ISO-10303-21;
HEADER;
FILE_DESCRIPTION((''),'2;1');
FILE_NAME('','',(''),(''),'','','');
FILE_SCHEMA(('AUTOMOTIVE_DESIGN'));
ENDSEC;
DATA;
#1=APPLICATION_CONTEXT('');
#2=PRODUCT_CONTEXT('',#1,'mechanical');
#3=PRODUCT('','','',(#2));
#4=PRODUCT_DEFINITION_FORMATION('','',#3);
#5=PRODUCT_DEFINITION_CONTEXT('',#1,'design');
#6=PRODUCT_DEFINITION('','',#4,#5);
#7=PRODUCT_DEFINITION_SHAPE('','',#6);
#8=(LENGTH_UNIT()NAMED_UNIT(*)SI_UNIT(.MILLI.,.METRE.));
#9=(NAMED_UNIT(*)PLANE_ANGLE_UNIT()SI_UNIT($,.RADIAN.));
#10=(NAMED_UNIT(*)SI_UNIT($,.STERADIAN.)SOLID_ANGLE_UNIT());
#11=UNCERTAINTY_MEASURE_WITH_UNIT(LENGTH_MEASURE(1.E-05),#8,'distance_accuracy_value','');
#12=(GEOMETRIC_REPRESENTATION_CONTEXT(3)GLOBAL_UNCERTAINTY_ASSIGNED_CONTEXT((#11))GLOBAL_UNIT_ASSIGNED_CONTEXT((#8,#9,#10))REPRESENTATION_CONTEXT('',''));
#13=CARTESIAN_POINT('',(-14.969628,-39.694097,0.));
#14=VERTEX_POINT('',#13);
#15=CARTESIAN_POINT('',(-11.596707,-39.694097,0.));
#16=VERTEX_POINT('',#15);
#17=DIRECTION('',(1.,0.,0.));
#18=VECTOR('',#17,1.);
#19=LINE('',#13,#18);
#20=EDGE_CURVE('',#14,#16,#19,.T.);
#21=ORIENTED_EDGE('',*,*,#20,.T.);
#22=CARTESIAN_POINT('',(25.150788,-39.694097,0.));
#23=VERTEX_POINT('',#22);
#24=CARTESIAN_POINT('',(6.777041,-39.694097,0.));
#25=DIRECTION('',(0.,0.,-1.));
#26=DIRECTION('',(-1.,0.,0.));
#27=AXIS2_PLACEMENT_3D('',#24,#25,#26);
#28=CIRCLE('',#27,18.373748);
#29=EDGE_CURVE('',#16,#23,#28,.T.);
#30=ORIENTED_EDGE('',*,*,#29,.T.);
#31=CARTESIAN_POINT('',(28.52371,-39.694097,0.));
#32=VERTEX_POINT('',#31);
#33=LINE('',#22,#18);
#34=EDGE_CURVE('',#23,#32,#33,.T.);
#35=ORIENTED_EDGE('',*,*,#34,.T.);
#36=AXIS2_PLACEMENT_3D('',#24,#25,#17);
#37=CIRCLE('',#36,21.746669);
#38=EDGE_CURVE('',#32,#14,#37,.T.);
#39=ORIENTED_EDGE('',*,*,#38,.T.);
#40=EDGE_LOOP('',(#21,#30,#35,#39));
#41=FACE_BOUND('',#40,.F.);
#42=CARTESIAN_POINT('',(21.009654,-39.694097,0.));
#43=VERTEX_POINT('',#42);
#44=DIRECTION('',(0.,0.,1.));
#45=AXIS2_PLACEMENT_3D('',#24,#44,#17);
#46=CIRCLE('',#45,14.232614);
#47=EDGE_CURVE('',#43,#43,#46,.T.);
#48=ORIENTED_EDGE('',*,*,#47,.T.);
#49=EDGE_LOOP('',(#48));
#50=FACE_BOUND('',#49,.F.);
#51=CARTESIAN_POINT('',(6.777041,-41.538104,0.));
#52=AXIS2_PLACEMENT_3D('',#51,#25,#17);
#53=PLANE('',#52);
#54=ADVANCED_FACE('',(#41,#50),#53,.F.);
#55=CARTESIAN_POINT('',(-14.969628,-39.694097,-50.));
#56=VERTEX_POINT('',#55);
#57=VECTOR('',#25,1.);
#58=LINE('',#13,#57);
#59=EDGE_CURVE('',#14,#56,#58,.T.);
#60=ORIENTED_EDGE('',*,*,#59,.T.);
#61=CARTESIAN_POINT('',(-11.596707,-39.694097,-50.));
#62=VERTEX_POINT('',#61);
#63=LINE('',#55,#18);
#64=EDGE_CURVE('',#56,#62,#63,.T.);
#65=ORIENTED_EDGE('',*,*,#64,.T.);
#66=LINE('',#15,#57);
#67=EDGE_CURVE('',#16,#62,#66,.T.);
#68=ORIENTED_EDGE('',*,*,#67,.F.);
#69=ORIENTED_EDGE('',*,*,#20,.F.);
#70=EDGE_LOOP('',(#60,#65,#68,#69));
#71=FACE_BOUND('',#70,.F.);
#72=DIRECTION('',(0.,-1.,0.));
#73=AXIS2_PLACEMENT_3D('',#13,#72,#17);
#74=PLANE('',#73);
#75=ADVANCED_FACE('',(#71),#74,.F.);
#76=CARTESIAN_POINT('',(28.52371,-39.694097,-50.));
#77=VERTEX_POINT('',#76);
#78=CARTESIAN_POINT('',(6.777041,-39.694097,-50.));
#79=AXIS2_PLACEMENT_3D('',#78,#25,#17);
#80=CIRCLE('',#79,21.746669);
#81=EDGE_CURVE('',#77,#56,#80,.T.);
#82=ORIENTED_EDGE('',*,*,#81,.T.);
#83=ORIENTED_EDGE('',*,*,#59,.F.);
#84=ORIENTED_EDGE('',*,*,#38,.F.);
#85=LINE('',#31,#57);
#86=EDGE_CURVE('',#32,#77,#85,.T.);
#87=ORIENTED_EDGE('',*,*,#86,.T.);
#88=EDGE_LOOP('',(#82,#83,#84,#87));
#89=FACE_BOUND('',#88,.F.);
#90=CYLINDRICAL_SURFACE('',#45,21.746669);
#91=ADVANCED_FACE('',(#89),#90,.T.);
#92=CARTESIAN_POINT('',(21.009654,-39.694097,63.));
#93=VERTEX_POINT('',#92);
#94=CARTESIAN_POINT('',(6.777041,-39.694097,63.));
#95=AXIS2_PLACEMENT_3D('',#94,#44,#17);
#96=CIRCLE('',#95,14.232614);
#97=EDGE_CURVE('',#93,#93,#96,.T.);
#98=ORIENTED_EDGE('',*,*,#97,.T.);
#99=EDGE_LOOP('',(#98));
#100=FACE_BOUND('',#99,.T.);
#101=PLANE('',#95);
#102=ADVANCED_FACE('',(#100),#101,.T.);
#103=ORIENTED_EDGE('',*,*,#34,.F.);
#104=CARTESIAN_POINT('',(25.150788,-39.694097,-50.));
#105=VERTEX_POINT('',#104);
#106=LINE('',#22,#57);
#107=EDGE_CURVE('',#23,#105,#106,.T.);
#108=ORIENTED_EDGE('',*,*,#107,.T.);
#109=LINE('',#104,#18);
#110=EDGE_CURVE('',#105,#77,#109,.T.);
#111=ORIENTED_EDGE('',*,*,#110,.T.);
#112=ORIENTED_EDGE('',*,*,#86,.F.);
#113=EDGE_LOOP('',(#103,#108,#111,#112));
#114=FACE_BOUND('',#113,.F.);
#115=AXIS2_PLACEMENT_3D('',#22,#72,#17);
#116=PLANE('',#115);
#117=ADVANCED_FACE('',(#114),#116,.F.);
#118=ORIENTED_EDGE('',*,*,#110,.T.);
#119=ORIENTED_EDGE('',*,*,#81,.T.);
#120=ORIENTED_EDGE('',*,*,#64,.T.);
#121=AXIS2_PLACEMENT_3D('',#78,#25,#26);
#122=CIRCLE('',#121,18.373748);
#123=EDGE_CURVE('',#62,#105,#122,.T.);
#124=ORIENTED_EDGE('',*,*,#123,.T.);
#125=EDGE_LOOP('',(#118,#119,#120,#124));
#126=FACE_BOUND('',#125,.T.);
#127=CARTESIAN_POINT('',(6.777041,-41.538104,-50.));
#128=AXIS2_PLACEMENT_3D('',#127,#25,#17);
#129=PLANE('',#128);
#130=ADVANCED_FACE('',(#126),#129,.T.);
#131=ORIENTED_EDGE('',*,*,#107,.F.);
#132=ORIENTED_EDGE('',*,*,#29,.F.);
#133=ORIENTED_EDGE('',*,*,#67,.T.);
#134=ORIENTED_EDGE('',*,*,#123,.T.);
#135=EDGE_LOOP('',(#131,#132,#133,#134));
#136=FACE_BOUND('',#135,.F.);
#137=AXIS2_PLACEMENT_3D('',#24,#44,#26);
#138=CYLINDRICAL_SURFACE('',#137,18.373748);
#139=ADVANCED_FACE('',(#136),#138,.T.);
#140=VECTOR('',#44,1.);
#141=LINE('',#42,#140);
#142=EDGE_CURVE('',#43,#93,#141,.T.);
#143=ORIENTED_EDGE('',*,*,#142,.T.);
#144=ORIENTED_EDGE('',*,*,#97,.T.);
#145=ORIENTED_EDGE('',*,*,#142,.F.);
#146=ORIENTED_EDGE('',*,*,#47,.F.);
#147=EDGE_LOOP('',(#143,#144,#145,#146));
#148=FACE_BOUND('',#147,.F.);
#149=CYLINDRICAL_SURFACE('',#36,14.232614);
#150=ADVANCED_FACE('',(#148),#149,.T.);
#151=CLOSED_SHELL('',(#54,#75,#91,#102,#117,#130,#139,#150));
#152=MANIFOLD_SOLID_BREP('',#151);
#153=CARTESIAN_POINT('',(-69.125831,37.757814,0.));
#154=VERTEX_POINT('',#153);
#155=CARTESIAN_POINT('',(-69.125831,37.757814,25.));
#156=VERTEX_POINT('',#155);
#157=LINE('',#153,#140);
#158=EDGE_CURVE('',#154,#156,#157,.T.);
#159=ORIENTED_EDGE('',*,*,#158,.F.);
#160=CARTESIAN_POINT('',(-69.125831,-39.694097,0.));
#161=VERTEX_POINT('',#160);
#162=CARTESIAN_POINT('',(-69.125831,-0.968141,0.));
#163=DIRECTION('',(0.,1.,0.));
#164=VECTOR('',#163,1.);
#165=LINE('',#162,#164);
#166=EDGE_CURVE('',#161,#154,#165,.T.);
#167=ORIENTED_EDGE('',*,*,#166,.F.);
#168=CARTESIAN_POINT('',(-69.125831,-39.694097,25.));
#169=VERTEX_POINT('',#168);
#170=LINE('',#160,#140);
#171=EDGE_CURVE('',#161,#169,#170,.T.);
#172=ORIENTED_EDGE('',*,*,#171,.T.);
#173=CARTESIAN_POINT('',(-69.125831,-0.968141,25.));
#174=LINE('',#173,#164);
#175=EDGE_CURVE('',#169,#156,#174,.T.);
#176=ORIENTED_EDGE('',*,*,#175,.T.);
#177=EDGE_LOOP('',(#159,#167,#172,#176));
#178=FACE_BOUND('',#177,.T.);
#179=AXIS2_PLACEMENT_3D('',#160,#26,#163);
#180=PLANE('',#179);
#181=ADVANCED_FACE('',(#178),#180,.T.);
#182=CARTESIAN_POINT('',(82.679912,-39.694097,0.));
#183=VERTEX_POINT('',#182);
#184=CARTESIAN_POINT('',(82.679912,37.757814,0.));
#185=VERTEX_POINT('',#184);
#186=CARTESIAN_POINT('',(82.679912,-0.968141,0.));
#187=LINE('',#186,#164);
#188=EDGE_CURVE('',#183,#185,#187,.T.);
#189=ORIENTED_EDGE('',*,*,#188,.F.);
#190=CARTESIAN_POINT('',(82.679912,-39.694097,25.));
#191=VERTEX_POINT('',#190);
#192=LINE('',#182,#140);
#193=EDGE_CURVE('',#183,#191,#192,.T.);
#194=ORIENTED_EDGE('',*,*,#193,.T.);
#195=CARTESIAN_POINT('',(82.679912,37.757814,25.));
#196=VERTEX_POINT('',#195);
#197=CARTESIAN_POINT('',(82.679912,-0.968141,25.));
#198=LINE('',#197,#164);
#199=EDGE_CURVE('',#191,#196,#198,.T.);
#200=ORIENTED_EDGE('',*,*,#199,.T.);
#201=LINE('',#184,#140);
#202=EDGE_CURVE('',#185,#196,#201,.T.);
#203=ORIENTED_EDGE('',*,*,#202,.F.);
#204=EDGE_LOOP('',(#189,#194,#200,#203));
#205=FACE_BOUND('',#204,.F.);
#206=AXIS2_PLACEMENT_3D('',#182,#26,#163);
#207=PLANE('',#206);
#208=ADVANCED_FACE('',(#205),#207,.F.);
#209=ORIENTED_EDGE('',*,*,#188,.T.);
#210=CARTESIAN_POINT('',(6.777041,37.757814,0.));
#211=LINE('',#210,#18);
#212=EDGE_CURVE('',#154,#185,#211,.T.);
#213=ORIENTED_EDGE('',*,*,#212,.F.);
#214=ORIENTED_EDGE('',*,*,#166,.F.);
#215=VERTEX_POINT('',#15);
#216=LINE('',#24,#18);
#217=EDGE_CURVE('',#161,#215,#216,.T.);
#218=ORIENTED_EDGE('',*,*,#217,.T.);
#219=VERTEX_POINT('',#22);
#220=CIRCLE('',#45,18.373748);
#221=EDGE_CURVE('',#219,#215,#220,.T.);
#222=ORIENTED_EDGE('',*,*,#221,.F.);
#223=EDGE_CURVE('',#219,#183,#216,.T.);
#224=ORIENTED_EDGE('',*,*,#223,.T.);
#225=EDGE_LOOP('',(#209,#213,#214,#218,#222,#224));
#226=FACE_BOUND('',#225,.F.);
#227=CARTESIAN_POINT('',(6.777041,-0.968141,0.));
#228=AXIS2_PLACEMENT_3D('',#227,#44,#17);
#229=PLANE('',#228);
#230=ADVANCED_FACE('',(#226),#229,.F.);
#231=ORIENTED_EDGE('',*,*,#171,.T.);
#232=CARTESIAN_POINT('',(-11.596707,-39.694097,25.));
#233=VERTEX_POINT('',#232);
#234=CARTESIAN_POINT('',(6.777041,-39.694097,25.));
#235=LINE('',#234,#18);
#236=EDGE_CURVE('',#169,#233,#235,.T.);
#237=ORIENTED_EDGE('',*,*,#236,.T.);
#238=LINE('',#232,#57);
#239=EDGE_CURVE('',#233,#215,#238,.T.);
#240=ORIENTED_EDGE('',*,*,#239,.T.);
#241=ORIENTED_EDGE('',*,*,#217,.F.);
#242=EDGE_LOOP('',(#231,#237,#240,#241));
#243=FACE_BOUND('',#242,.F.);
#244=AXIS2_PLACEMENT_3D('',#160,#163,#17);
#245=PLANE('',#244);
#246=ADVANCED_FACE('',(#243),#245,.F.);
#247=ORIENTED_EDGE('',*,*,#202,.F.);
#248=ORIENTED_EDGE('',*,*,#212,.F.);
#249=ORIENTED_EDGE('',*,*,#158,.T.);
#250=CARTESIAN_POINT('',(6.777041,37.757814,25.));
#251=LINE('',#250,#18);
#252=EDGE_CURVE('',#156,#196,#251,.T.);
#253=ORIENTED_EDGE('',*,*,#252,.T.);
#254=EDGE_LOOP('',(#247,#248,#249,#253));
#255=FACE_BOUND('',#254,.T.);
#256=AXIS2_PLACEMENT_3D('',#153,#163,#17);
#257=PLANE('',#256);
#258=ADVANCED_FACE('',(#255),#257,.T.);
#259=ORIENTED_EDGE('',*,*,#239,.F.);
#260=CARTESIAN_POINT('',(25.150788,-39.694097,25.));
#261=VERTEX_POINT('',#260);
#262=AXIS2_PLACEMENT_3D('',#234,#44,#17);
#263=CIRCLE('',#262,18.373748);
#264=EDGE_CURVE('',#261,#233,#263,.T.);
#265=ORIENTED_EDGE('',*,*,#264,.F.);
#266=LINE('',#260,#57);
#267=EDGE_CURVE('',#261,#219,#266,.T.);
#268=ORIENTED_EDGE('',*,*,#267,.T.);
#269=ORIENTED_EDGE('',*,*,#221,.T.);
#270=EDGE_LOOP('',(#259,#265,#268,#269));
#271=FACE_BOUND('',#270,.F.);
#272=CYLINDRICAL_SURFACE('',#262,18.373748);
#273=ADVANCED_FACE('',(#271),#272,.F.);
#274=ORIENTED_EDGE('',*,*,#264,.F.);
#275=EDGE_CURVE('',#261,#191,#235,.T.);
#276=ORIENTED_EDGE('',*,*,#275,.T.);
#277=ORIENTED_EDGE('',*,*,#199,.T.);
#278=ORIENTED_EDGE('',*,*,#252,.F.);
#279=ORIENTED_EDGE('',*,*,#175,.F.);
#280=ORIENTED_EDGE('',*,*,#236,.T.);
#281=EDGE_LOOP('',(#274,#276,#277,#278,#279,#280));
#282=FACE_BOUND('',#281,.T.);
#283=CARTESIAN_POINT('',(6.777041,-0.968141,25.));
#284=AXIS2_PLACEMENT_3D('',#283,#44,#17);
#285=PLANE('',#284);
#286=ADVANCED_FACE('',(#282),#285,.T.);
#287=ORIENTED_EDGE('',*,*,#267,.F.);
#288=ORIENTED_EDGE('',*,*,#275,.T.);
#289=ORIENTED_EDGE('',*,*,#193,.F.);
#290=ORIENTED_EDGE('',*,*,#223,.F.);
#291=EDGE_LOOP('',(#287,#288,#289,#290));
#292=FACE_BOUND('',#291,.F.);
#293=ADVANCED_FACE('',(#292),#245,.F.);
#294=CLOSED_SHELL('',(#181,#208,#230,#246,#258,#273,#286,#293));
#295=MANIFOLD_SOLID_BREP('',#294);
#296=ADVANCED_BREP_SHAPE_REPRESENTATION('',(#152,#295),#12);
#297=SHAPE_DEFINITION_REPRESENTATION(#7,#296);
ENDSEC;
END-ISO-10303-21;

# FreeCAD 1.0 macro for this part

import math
import FreeCAD as App
import Part
import Sketcher
from FreeCAD import Vector
Q = App.Units.Quantity


def add_polygon(sketch, points):
    """Adds a closed chain of lines whose ends are joined by coincident constraints."""
    first, n = sketch.GeometryCount, len(points)
    for a, b in zip(points, points[1:] + points[:1]):
        sketch.addGeometry(Part.LineSegment(App.Vector(*a, 0), App.Vector(*b, 0)), False)
    for i in range(n):
        sketch.addConstraint(Sketcher.Constraint("Coincident", first + i, 2, first + (i + 1) % n, 1))

doc = App.newDocument("Part")
body = doc.addObject("PartDesign::Body", "Body")

sketch1 = body.newObject("Sketcher::SketchObject", "Sketch")
sketch1.AttachmentSupport = (doc.getObject("XY_Plane"), [""])
sketch1.MapMode = "FlatFace"
add_polygon(sketch1, [(-69, 38), (-69, -40), (83, -40), (83, 38)])
sketch1.addConstraint([
    Sketcher.Constraint("Vertical", 0),
    Sketcher.Constraint("Horizontal", 1),
    Sketcher.Constraint("Vertical", 2),
    Sketcher.Constraint("Horizontal", 3),
    Sketcher.Constraint("DistanceY", 0, 2, 0, 1, Q("77.451911 mm")),
    Sketcher.Constraint("DistanceX", 1, 1, 1, 2, Q("151.805744 mm")),
    Sketcher.Constraint("DistanceX", 0, 2, -1, 1, Q("69.125831 mm")),
    Sketcher.Constraint("DistanceY", 0, 2, -1, 1, Q("39.694097 mm")),
])
pad1 = body.newObject("PartDesign::Pad", "Pad")
pad1.Profile = sketch1
pad1.Length = 25

sketch2 = body.newObject("Sketcher::SketchObject", "Sketch001")
sketch2.AttachmentSupport = (doc.getObject("XY_Plane"), [""])
sketch2.MapMode = "FlatFace"
sketch2.AttachmentOffset = App.Placement(Vector(0, 0, 25), App.Rotation())
sketch2.addGeometry([
    Part.LineSegment(Vector(-12, -40, 0), Vector(25, -40, 0)),
    Part.ArcOfCircle(Part.Circle(Vector(7, -40, 0), Vector(0, 0, 1), 18), math.radians(0), math.radians(180)),
], False)
sketch2.addConstraint([
    Sketcher.Constraint("Coincident", 0, 1, 1, 2),
    Sketcher.Constraint("Coincident", 1, 1, 0, 2),
    Sketcher.Constraint("Horizontal", 0),
    Sketcher.Constraint("Horizontal", 1, 3, 0, 1),
    Sketcher.Constraint("Radius", 1, Q("18.373748 mm")),
    Sketcher.Constraint("DistanceX", -1, 1, 1, 3, Q("6.777041 mm")),
    Sketcher.Constraint("DistanceY", 1, 3, -1, 1, Q("39.694097 mm")),
])
pocket1 = body.newObject("PartDesign::Pocket", "Pocket")
pocket1.Profile = sketch2
pocket1.Length = 25
body2 = doc.addObject("PartDesign::Body", "Body001")

sketch3 = body2.newObject("Sketcher::SketchObject", "Sketch002")
sketch3.AttachmentSupport = (doc.getObject("XY_Plane001"), [""])
sketch3.MapMode = "FlatFace"
sketch3.addGeometry([
    Part.LineSegment(Vector(25.2, -39.7, 0), Vector(28.5, -39.7, 0)),
    Part.ArcOfCircle(Part.Circle(Vector(6.8, -39.7, 0), Vector(0, 0, 1), 21.7), math.radians(180), math.radians(360)),
    Part.LineSegment(Vector(-15, -39.7, 0), Vector(-11.6, -39.7, 0)),
    Part.ArcOfCircle(Part.Circle(Vector(6.8, -39.7, 0), Vector(0, 0, 1), 18.4), math.radians(0), math.radians(180)),
], False)
sketch3.addConstraint([
    Sketcher.Constraint("Coincident", 0, 2, 1, 2),
    Sketcher.Constraint("Coincident", 1, 1, 2, 1),
    Sketcher.Constraint("Coincident", 2, 2, 3, 2),
    Sketcher.Constraint("Coincident", 3, 1, 0, 1),
    Sketcher.Constraint("Horizontal", 0),
    Sketcher.Constraint("Horizontal", 2),
    Sketcher.Constraint("Coincident", 3, 3, 1, 3),
    Sketcher.Constraint("Horizontal", 3, 3, 0, 2),
    Sketcher.Constraint("Horizontal", 0, 2, 1, 1),
    Sketcher.Constraint("Radius", 1, Q("21.746669 mm")),
    Sketcher.Constraint("Radius", 3, Q("18.373748 mm")),
    Sketcher.Constraint("DistanceX", -1, 1, 1, 3, Q("6.777041 mm")),
    Sketcher.Constraint("DistanceY", 1, 3, -1, 1, Q("39.694097 mm")),
])
pad2 = body2.newObject("PartDesign::Pad", "Pad001")
pad2.Profile = sketch3
pad2.Length = 50
pad2.Reversed = True

sketch4 = body2.newObject("Sketcher::SketchObject", "Sketch003")
sketch4.AttachmentSupport = (doc.getObject("XY_Plane001"), [""])
sketch4.MapMode = "FlatFace"
sketch4.addGeometry(Part.Circle(Vector(7, -40, 0), Vector(0, 0, 1), 14), False)
sketch4.addConstraint([
    Sketcher.Constraint("Diameter", 0, Q("28.465227 mm")),
    Sketcher.Constraint("DistanceX", -1, 1, 0, 3, Q("6.777041 mm")),
    Sketcher.Constraint("DistanceY", 0, 3, -1, 1, Q("39.694097 mm")),
])
pad3 = body2.newObject("PartDesign::Pad", "Pad002")
pad3.Profile = sketch4
pad3.Length = 63

doc.recompute()
